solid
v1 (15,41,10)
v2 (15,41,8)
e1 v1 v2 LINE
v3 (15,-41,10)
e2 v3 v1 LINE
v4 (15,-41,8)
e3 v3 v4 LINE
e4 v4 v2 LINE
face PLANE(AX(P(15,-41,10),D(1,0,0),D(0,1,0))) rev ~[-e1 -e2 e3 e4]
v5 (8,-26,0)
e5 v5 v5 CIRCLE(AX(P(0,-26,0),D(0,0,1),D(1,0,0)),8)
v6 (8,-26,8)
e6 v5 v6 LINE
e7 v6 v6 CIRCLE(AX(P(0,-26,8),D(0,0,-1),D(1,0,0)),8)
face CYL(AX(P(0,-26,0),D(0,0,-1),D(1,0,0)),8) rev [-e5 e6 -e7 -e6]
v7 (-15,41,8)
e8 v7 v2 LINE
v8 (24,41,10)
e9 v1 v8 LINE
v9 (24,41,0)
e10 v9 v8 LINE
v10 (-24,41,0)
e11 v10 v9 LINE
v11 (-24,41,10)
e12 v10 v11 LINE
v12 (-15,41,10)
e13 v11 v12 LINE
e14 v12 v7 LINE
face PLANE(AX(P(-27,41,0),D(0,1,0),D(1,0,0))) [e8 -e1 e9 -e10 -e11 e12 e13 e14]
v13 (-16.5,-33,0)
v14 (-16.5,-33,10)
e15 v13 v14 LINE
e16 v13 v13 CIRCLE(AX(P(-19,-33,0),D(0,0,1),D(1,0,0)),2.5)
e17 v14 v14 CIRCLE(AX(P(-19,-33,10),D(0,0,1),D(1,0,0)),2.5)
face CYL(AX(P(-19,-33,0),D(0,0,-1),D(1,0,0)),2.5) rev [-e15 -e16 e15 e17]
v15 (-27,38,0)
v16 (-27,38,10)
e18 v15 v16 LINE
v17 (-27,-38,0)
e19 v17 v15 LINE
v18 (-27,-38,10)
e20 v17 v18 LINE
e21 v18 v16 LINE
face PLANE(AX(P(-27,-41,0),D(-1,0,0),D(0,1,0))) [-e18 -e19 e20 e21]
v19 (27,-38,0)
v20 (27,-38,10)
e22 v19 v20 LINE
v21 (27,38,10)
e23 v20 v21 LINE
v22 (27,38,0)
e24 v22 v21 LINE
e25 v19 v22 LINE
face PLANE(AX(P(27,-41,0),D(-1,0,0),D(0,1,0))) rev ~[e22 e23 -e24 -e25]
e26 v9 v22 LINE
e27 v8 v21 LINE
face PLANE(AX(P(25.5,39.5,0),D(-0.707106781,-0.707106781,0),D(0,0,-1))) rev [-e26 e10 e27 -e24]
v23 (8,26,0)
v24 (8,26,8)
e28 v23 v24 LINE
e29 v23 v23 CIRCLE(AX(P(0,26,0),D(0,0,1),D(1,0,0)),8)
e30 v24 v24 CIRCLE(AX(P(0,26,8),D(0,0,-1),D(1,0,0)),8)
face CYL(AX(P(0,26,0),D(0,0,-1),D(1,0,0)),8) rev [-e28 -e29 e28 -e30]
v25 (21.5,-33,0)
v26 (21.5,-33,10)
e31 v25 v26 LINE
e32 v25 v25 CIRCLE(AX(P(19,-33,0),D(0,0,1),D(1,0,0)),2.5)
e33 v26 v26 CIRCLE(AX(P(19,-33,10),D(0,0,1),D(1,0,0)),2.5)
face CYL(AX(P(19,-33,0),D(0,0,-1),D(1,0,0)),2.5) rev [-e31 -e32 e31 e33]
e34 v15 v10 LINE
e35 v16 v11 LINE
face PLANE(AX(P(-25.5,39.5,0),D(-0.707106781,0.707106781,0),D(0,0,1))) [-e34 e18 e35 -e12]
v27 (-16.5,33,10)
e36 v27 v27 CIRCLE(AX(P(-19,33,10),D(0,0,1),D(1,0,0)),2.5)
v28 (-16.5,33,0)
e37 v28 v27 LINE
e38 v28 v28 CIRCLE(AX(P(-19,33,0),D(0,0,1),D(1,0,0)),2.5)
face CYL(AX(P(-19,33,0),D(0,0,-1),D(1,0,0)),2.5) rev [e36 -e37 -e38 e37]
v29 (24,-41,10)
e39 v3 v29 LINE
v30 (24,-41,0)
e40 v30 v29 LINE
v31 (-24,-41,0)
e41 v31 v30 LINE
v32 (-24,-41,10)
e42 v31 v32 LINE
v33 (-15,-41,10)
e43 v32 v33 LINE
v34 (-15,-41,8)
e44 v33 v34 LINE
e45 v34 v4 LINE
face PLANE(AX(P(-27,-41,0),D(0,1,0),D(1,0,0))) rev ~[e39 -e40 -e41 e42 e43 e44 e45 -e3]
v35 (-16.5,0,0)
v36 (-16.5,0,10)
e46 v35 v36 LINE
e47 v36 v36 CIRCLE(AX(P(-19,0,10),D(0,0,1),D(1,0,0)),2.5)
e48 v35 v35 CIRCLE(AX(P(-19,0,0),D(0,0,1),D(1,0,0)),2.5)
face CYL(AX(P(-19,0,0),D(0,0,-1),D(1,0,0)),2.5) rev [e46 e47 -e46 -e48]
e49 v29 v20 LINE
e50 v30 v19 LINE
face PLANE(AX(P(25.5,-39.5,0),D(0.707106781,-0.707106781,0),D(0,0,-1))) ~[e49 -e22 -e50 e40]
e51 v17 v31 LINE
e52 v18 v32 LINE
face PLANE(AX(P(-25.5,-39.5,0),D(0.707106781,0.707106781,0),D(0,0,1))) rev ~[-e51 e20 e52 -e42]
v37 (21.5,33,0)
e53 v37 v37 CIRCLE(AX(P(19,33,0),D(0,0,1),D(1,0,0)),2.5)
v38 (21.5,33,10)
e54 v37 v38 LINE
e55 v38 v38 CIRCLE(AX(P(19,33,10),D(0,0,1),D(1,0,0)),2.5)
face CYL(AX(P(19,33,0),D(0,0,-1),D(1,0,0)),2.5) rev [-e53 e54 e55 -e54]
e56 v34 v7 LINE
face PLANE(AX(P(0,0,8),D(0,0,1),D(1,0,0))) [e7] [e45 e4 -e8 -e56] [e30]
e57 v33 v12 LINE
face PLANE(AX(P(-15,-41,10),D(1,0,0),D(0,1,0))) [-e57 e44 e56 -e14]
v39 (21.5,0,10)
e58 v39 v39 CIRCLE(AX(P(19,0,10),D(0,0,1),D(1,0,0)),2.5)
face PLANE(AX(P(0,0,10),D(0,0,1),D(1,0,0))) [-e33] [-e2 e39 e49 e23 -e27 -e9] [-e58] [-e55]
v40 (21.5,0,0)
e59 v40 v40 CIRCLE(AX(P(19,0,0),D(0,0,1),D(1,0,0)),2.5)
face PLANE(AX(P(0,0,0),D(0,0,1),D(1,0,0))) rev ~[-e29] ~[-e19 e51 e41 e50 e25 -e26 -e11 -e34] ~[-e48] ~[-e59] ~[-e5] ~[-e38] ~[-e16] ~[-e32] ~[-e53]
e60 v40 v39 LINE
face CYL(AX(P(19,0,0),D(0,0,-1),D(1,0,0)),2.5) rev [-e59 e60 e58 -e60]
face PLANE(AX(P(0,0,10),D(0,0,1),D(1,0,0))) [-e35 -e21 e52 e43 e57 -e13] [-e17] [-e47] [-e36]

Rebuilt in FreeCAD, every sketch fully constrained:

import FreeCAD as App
import Part
import Sketcher
from FreeCAD import Vector
Q = App.Units.Quantity


def edges_at(feature, points):
    """Names of the edges that pass closest to the given points."""
    edges = feature.Shape.Edges
    near = lambda p: min(range(len(edges)), key=lambda i: edges[i].distToShape(Part.Vertex(*p))[0])
    return sorted({f"Edge{near(p) + 1}" for p in points})


def add_polygon(sketch, points):
    """Adds a closed chain of lines whose ends are joined by coincident constraints."""
    first, n = sketch.GeometryCount, len(points)
    for a, b in zip(points, points[1:] + points[:1]):
        sketch.addGeometry(Part.LineSegment(App.Vector(*a, 0), App.Vector(*b, 0)), False)
    for i in range(n):
        sketch.addConstraint(Sketcher.Constraint("Coincident", first + i, 2, first + (i + 1) % n, 1))

doc = App.newDocument("Part")
body = doc.addObject("PartDesign::Body", "Body")

# Sketch on XY plane
sketch1 = doc.addObject("Sketcher::SketchObject", "Sketch")
body.addObject(sketch1)
sketch1.AttachmentSupport = (doc.XY_Plane, [""])
sketch1.MapMode = "FlatFace"
add_polygon(sketch1, [(-27, 41), (-27, -41), (27, -41), (27, 41)])  # lines 0-3
sketch1.addGeometry(Part.Circle(Vector(-19, -33, 0), Vector(0, 0, 1), 2.5), False)  # 4
sketch1.addGeometry(Part.Circle(Vector(0, -26, 0), Vector(0, 0, 1), 8), False)  # 5
sketch1.addGeometry(Part.Circle(Vector(19, -33, 0), Vector(0, 0, 1), 2.5), False)  # 6
sketch1.addGeometry(Part.Circle(Vector(-19, 0, 0), Vector(0, 0, 1), 2.5), False)  # 7
sketch1.addGeometry(Part.Circle(Vector(-19, 33, 0), Vector(0, 0, 1), 2.5), False)  # 8
sketch1.addGeometry(Part.Circle(Vector(19, 0, 0), Vector(0, 0, 1), 2.5), False)  # 9
sketch1.addGeometry(Part.Circle(Vector(0, 26, 0), Vector(0, 0, 1), 8), False)  # 10
sketch1.addGeometry(Part.Circle(Vector(19, 33, 0), Vector(0, 0, 1), 2.5), False)  # 11
sketch1.addConstraint(Sketcher.Constraint("Vertical", 0))
sketch1.addConstraint(Sketcher.Constraint("Horizontal", 1))
sketch1.addConstraint(Sketcher.Constraint("Vertical", 2))
sketch1.addConstraint(Sketcher.Constraint("Horizontal", 3))
sketch1.addConstraint(Sketcher.Constraint("Equal", 4, 6))
sketch1.addConstraint(Sketcher.Constraint("Equal", 6, 7))
sketch1.addConstraint(Sketcher.Constraint("Equal", 7, 8))
sketch1.addConstraint(Sketcher.Constraint("Equal", 8, 9))
sketch1.addConstraint(Sketcher.Constraint("Equal", 5, 10))
sketch1.addConstraint(Sketcher.Constraint("Equal", 9, 11))
sketch1.addConstraint(Sketcher.Constraint("Symmetric", 6, 3, 8, 3, -1, 1))
sketch1.addConstraint(Sketcher.Constraint("Symmetric", 7, 3, 9, 3, -1, 1))
sketch1.addConstraint(Sketcher.Constraint("Symmetric", 5, 3, 10, 3, -1, 1))
sketch1.addConstraint(Sketcher.Constraint("Symmetric", 4, 3, 11, 3, -1, 1))
sketch1.addConstraint(Sketcher.Constraint("Symmetric", 0, 2, 2, 2, -1, 1))
sketch1.addConstraint(Sketcher.Constraint("Symmetric", 4, 3, 6, 3, -2))
sketch1.addConstraint(Sketcher.Constraint("PointOnObject", 5, 3, -2))
sketch1.addConstraint(Sketcher.Constraint("PointOnObject", 7, 3, -1))
sketch1.addConstraint(Sketcher.Constraint("Vertical", 4, 3, 7, 3))
sketch1.addConstraint(Sketcher.Constraint("Diameter", 4, Q("5 mm")))
sketch1.addConstraint(Sketcher.Constraint("Diameter", 5, Q("16 mm")))
sketch1.addConstraint(Sketcher.Constraint("DistanceX", 1, 1, 1, 2, Q("54 mm")))
sketch1.addConstraint(Sketcher.Constraint("DistanceY", 0, 2, 0, 1, Q("82 mm")))
sketch1.addConstraint(Sketcher.Constraint("DistanceX", 4, 3, -1, 1, Q("19 mm")))
sketch1.addConstraint(Sketcher.Constraint("DistanceY", 4, 3, -1, 1, Q("33 mm")))
sketch1.addConstraint(Sketcher.Constraint("DistanceY", 5, 3, -1, 1, Q("26 mm")))
pad1 = doc.addObject("PartDesign::Pad", "Pad")
body.addObject(pad1)
pad1.Profile = sketch1
pad1.Length = 10
doc.recompute()

chamfer = doc.addObject("PartDesign::Chamfer", "Chamfer")
body.addObject(chamfer)
chamfer.Base = (pad1, edges_at(pad1, [
    (27, -41, 5),
    (-27, -41, 5),
    (27, 41, 5),
    (-27, 41, 5),
]))
chamfer.Size = 3

# Sketch on XY plane
sketch2 = doc.addObject("Sketcher::SketchObject", "Sketch001")
body.addObject(sketch2)
sketch2.AttachmentSupport = (doc.XY_Plane, [""])
sketch2.MapMode = "FlatFace"
sketch2.AttachmentOffset = App.Placement(Vector(0, 0, 10), App.Rotation())
add_polygon(sketch2, [(-15, 41), (-15, -41), (15, -41), (15, 41)])  # lines 0-3
sketch2.addConstraint(Sketcher.Constraint("Vertical", 0))
sketch2.addConstraint(Sketcher.Constraint("Horizontal", 1))
sketch2.addConstraint(Sketcher.Constraint("Vertical", 2))
sketch2.addConstraint(Sketcher.Constraint("Horizontal", 3))
sketch2.addConstraint(Sketcher.Constraint("Symmetric", 0, 2, 2, 2, -1, 1))
sketch2.addConstraint(Sketcher.Constraint("DistanceX", 1, 1, 1, 2, Q("30 mm")))
sketch2.addConstraint(Sketcher.Constraint("DistanceY", 0, 2, 0, 1, Q("82 mm")))
pocket1 = doc.addObject("PartDesign::Pocket", "Pocket")
body.addObject(pocket1)
pocket1.Profile = sketch2
pocket1.Length = 2

doc.recompute()
